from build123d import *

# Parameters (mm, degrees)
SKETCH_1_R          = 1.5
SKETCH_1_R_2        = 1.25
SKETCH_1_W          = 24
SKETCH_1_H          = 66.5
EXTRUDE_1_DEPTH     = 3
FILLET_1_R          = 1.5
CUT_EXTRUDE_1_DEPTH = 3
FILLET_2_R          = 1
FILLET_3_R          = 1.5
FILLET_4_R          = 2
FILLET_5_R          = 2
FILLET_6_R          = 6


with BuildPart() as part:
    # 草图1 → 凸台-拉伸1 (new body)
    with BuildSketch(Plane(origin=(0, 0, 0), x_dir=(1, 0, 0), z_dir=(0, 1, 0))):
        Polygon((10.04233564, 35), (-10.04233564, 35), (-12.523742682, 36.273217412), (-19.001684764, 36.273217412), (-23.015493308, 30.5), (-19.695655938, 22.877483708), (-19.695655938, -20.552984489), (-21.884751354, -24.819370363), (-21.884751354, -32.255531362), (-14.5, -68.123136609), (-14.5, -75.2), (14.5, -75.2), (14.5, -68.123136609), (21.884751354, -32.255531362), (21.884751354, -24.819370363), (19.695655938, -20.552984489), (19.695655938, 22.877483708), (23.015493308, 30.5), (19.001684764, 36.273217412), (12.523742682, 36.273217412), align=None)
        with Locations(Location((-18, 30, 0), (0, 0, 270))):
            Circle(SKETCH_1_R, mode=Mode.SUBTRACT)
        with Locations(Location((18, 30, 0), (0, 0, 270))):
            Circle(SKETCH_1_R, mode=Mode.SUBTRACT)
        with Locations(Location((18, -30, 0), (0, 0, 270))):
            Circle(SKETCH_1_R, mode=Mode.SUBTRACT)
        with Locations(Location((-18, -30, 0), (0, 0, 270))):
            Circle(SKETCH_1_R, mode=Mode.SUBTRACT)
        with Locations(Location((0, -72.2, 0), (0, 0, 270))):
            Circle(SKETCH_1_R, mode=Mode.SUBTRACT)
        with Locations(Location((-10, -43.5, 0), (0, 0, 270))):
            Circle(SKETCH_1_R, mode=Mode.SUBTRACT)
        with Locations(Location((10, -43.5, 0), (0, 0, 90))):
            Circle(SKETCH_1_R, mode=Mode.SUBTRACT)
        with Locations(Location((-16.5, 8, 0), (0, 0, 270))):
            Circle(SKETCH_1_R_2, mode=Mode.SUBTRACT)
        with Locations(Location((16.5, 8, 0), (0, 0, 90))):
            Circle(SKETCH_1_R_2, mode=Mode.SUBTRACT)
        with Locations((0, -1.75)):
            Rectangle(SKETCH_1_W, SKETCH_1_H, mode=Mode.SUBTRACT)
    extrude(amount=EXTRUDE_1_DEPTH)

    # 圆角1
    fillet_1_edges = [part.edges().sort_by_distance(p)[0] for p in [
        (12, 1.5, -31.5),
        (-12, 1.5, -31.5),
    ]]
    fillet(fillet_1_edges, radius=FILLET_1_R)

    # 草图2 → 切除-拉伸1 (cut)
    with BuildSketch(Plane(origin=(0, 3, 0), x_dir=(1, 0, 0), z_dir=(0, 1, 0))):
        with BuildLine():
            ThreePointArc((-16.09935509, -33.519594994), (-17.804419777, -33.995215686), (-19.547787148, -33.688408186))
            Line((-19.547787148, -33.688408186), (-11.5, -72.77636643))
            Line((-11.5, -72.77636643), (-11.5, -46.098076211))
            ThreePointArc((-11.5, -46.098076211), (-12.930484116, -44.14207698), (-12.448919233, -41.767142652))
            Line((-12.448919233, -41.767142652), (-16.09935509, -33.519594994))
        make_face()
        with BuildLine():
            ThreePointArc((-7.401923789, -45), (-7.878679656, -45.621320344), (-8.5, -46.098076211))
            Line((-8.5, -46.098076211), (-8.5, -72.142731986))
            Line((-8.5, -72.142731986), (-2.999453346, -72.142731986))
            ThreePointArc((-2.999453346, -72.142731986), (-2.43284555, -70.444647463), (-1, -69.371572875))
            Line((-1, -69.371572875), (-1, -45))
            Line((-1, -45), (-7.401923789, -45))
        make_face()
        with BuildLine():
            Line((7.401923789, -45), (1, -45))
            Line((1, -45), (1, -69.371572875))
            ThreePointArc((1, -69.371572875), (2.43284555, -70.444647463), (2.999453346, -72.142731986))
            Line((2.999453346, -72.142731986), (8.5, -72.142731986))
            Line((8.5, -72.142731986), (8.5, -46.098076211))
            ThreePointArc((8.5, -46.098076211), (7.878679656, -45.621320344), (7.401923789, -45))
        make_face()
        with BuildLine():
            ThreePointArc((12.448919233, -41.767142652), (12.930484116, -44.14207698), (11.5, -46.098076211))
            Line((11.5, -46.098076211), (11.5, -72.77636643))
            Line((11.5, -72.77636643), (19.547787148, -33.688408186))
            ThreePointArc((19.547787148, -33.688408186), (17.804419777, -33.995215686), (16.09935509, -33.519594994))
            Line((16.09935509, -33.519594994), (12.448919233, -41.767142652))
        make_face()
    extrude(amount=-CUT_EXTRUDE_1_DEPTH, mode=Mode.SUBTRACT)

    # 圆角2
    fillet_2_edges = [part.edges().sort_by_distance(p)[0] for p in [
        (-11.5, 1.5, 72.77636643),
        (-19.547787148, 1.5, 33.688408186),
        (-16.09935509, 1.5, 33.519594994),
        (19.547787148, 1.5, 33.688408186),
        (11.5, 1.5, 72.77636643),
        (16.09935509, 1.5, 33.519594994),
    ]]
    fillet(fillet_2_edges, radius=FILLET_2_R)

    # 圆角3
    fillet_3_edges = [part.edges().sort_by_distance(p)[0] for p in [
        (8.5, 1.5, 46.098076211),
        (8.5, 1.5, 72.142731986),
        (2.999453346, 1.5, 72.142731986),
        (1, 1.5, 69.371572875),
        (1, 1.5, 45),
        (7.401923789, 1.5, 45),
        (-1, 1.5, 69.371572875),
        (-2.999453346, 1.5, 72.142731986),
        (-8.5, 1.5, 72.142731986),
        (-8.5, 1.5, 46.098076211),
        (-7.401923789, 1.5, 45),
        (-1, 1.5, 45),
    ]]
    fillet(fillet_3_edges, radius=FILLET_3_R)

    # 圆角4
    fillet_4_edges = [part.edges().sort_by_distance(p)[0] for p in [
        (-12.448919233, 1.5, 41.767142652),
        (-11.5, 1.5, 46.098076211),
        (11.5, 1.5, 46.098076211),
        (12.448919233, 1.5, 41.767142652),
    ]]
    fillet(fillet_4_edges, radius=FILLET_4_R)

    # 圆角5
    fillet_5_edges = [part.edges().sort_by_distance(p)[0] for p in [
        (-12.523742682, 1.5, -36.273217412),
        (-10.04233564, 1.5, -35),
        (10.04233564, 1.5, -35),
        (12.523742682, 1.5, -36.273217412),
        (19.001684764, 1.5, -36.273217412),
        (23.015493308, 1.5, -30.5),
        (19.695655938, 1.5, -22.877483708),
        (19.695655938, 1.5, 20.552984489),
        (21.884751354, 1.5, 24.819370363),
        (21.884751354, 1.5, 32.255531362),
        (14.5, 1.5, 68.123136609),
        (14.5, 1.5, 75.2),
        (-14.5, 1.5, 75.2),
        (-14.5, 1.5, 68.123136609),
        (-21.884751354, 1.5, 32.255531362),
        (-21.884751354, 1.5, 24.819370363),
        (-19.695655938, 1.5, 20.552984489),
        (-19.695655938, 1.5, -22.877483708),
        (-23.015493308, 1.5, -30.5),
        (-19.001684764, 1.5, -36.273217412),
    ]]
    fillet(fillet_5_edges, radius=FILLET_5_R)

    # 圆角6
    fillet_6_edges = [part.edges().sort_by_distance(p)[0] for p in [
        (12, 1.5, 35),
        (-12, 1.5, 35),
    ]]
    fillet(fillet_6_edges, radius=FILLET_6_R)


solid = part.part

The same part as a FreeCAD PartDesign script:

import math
import FreeCAD as App
import Part
import Sketcher


def edges_at(feature, points):
    """Names of the edges that pass closest to the given points."""
    edges = feature.Shape.Edges
    near = lambda p: min(range(len(edges)), key=lambda i: edges[i].distToShape(Part.Vertex(*p))[0])
    return sorted({f"Edge{near(p) + 1}" for p in points})


def add_polygon(sketch, points):
    """Adds a closed chain of lines whose ends are joined by coincident constraints."""
    first, n = sketch.GeometryCount, len(points)
    for a, b in zip(points, points[1:] + points[:1]):
        sketch.addGeometry(Part.LineSegment(App.Vector(*a, 0), App.Vector(*b, 0)), False)
    for i in range(n):
        sketch.addConstraint(Sketcher.Constraint("Coincident", first + i, 2, first + (i + 1) % n, 1))

doc = App.newDocument("Part")
body = doc.addObject("PartDesign::Body", "Body")

sketch1 = body.newObject("Sketcher::SketchObject", "Sketch")
sketch1.AttachmentSupport = (doc.getObject("XZ_Plane"), [""])
sketch1.MapMode = "FlatFace"
add_polygon(sketch1, [(10, -35), (-10, -35), (-12.5, -36.3), (-19, -36.3), (-23, -30.5), (-19.7, -22.9), (-19.7, 20.6), (-21.9, 24.8), (-21.9, 32.3), (-14.5, 68.1), (-14.5, 75.2), (14.5, 75.2), (14.5, 68.1), (21.9, 32.3), (21.9, 24.8), (19.7, 20.6), (19.7, -22.9), (23, -30.5), (19, -36.3), (12.5, -36.3)])
sketch1.addGeometry(Part.Circle(App.Vector(-10, 43.5, 0), App.Vector(0, 0, 1), 1.5), False)
sketch1.addGeometry(Part.Circle(App.Vector(-18, 30, 0), App.Vector(0, 0, 1), 1.5), False)
sketch1.addGeometry(Part.Circle(App.Vector(0, 72.2, 0), App.Vector(0, 0, 1), 1.5), False)
sketch1.addGeometry(Part.Circle(App.Vector(10, 43.5, 0), App.Vector(0, 0, 1), 1.5), False)
sketch1.addGeometry(Part.Circle(App.Vector(18, 30, 0), App.Vector(0, 0, 1), 1.5), False)
sketch1.addGeometry(Part.Circle(App.Vector(-16.5, -8, 0), App.Vector(0, 0, 1), 1.2), False)
sketch1.addGeometry(Part.Circle(App.Vector(-18, -30, 0), App.Vector(0, 0, 1), 1.5), False)
add_polygon(sketch1, [(12, 35), (-12, 35), (-12, -31.5), (12, -31.5)])
sketch1.addGeometry(Part.Circle(App.Vector(16.5, -8, 0), App.Vector(0, 0, 1), 1.2), False)
sketch1.addGeometry(Part.Circle(App.Vector(18, -30, 0), App.Vector(0, 0, 1), 1.5), False)
sketch1.addConstraint([
    Sketcher.Constraint("Horizontal", 0),
    Sketcher.Constraint("Horizontal", 2),
    Sketcher.Constraint("Vertical", 5),
    Sketcher.Constraint("Vertical", 7),
    Sketcher.Constraint("Vertical", 9),
    Sketcher.Constraint("Horizontal", 10),
    Sketcher.Constraint("Vertical", 11),
    Sketcher.Constraint("Vertical", 13),
    Sketcher.Constraint("Vertical", 15),
    Sketcher.Constraint("Horizontal", 18),
    Sketcher.Constraint("Horizontal", 27),
    Sketcher.Constraint("Vertical", 28),
    Sketcher.Constraint("Horizontal", 29),
    Sketcher.Constraint("Vertical", 30),
    Sketcher.Constraint("Equal", 20, 21),
    Sketcher.Constraint("Equal", 21, 22),
    Sketcher.Constraint("Equal", 22, 23),
    Sketcher.Constraint("Equal", 23, 24),
    Sketcher.Constraint("Equal", 24, 26),
    Sketcher.Constraint("Equal", 25, 31),
    Sketcher.Constraint("Equal", 26, 32),
    Sketcher.Constraint("Symmetric", 24, 3, 26, 3, -1, 1),
    Sketcher.Constraint("Symmetric", 21, 3, 32, 3, -1, 1),
    Sketcher.Constraint("Symmetric", 20, 3, 23, 3, -2),
    Sketcher.Constraint("Symmetric", 21, 3, 24, 3, -2),
    Sketcher.Constraint("Symmetric", 25, 3, 31, 3, -2),
    Sketcher.Constraint("Symmetric", 8, 2, 11, 2, -2),
    Sketcher.Constraint("Symmetric", 7, 2, 12, 2, -2),
    Sketcher.Constraint("Symmetric", 5, 2, 14, 2, -2),
    Sketcher.Constraint("Symmetric", 3, 2, 16, 2, -2),
    Sketcher.Constraint("Symmetric", 2, 2, 17, 2, -2),
    Sketcher.Constraint("PointOnObject", 22, 3, -2),
    Sketcher.Constraint("Perpendicular", 1, 6),
    Sketcher.Constraint("Perpendicular", 14, 19),
    Sketcher.Constraint("Horizontal", 6, 2, 13, 2),
    Sketcher.Constraint("Horizontal", 4, 2, 15, 2),
    Sketcher.Constraint("Equal", 2, 18),
    Sketcher.Constraint("Diameter", 20, 3.0),
    Sketcher.Constraint("Diameter", 25, 2.5),
    Sketcher.Constraint("DistanceX", 10, 1, 10, 2, 29.0),
    Sketcher.Constraint("DistanceX", 27, 2, 27, 1, 24.0),
    Sketcher.Constraint("DistanceY", 28, 2, 28, 1, 66.5),
    Sketcher.Constraint("DistanceX", 20, 3, -1, 1, 10.0),
    Sketcher.Constraint("DistanceX", 21, 3, -1, 1, 18.0),
    Sketcher.Constraint("DistanceY", -1, 1, 21, 3, 30.0),
    Sketcher.Constraint("DistanceY", 25, 3, -1, 1, 8.0),
    Sketcher.Constraint("DistanceY", 0, 2, -1, 1, 35.0),
    Sketcher.Constraint("DistanceX", 27, 2, -1, 1, 12.0),
    Sketcher.Constraint("DistanceY", -1, 1, 27, 2, 35.0),
    Sketcher.Constraint("DistanceX", 25, 3, 31, 3, 33.0),
    Sketcher.Constraint("DistanceY", 22, 3, 9, 2, 3.0),
    Sketcher.Constraint("DistanceY", 28, 2, 3, 2, 1.0),
    Sketcher.Constraint("DistanceY", -1, 1, 20, 3, 43.5),
    Sketcher.Constraint("DistanceY", -1, 1, 22, 3, 72.2),
    Sketcher.Constraint("DistanceX", 0, 2, 0, 1, 20.084671),
    Sketcher.Constraint("DistanceY", 5, 1, 5, 2, 43.430468),
    Sketcher.Constraint("DistanceY", 7, 1, 7, 2, 7.436161),
    Sketcher.Constraint("DistanceX", 1, 2, 15, 2, 32.219399),
    Sketcher.Constraint("Distance", 1, 2.78899),
    Sketcher.Constraint("Distance", 4, 8.314089),
    Sketcher.Constraint("DistanceX", 2, 2, 2, 1, 6.477942),
    Sketcher.Constraint("DistanceY", 9, 1, 9, 2, 7.076863),
    Sketcher.Constraint("DistanceX", 6, 2, -1, 1, 21.884751),
    Sketcher.Constraint("DistanceY", -1, 1, 6, 2, 24.81937),
    Sketcher.Constraint("DistanceX", 2, 2, 0, 2, 8.959349),
])
pad1 = body.newObject("PartDesign::Pad", "Pad")
pad1.Profile = sketch1
pad1.Length = 3
pad1.Reversed = True
doc.recompute()

fillet = body.newObject("PartDesign::Fillet", "Fillet")
fillet.Base = (pad1, edges_at(pad1, [(12, 1.5, -31.5), (-12, 1.5, -31.5)]))
fillet.Radius = 1.5

sketch2 = body.newObject("Sketcher::SketchObject", "Sketch001")
sketch2.AttachmentSupport = (doc.getObject("XZ_Plane"), [""])
sketch2.MapMode = "FlatFace"
sketch2.AttachmentOffset = App.Placement(App.Vector(0, 0, -3), App.Rotation())
sketch2.addGeometry([
    Part.ArcOfCircle(Part.Circle(App.Vector(-18, 30, 0), App.Vector(0, 0, 1), 4), math.radians(62), math.radians(113)),
    Part.LineSegment(App.Vector(-19.5, 33.7, 0), App.Vector(-11.5, 72.8, 0)),
    Part.LineSegment(App.Vector(-11.5, 72.8, 0), App.Vector(-11.5, 46.1, 0)),
    Part.ArcOfCircle(Part.Circle(App.Vector(-10, 43.5, 0), App.Vector(0, 0, 1), 3), math.radians(120), math.radians(215)),
    Part.LineSegment(App.Vector(-12.4, 41.8, 0), App.Vector(-16.1, 33.5, 0)),
    Part.ArcOfCircle(Part.Circle(App.Vector(-10, 43.5, 0), App.Vector(0, 0, 1), 3), math.radians(30), math.radians(60)),
    Part.LineSegment(App.Vector(-8.5, 46.1, 0), App.Vector(-8.5, 72.1, 0)),
    Part.LineSegment(App.Vector(-8.5, 72.1, 0), App.Vector(-3, 72.1, 0)),
    Part.ArcOfCircle(Part.Circle(App.Vector(0, 72.2, 0), App.Vector(0, 0, 1), 3), math.radians(-179), math.radians(-109)),
    Part.LineSegment(App.Vector(-1, 69.4, 0), App.Vector(-1, 45, 0)),
    Part.LineSegment(App.Vector(-1, 45, 0), App.Vector(-7.4, 45, 0)),
    Part.LineSegment(App.Vector(7.4, 45, 0), App.Vector(1, 45, 0)),
    Part.LineSegment(App.Vector(1, 45, 0), App.Vector(1, 69.4, 0)),
    Part.ArcOfCircle(Part.Circle(App.Vector(0, 72.2, 0), App.Vector(0, 0, 1), 3), math.radians(-71), math.radians(-1)),
    Part.LineSegment(App.Vector(3, 72.1, 0), App.Vector(8.5, 72.1, 0)),
    Part.LineSegment(App.Vector(8.5, 72.1, 0), App.Vector(8.5, 46.1, 0)),
    Part.ArcOfCircle(Part.Circle(App.Vector(10, 43.5, 0), App.Vector(0, 0, 1), 3), math.radians(120), math.radians(150)),
    Part.ArcOfCircle(Part.Circle(App.Vector(10, 43.5, 0), App.Vector(0, 0, 1), 3), math.radians(-35), math.radians(60)),
    Part.LineSegment(App.Vector(11.5, 46.1, 0), App.Vector(11.5, 72.8, 0)),
    Part.LineSegment(App.Vector(11.5, 72.8, 0), App.Vector(19.5, 33.7, 0)),
    Part.ArcOfCircle(Part.Circle(App.Vector(18, 30, 0), App.Vector(0, 0, 1), 4), math.radians(67), math.radians(118)),
    Part.LineSegment(App.Vector(16.1, 33.5, 0), App.Vector(12.4, 41.8, 0)),
], False)
sketch2.addConstraint([
    Sketcher.Constraint("Coincident", 0, 2, 1, 1),
    Sketcher.Constraint("Coincident", 1, 2, 2, 1),
    Sketcher.Constraint("Coincident", 2, 2, 3, 1),
    Sketcher.Constraint("Coincident", 3, 2, 4, 1),
    Sketcher.Constraint("Coincident", 4, 2, 0, 1),
    Sketcher.Constraint("Coincident", 5, 2, 6, 1),
    Sketcher.Constraint("Coincident", 6, 2, 7, 1),
    Sketcher.Constraint("Coincident", 7, 2, 8, 1),
    Sketcher.Constraint("Coincident", 8, 2, 9, 1),
    Sketcher.Constraint("Coincident", 9, 2, 10, 1),
    Sketcher.Constraint("Coincident", 10, 2, 5, 1),
    Sketcher.Constraint("Coincident", 11, 2, 12, 1),
    Sketcher.Constraint("Coincident", 12, 2, 13, 1),
    Sketcher.Constraint("Coincident", 13, 2, 14, 1),
    Sketcher.Constraint("Coincident", 14, 2, 15, 1),
    Sketcher.Constraint("Coincident", 15, 2, 16, 1),
    Sketcher.Constraint("Coincident", 16, 2, 11, 1),
    Sketcher.Constraint("Coincident", 17, 2, 18, 1),
    Sketcher.Constraint("Coincident", 18, 2, 19, 1),
    Sketcher.Constraint("Coincident", 19, 2, 20, 1),
    Sketcher.Constraint("Coincident", 20, 2, 21, 1),
    Sketcher.Constraint("Coincident", 21, 2, 17, 1),
    Sketcher.Constraint("Vertical", 2),
    Sketcher.Constraint("Vertical", 6),
    Sketcher.Constraint("Horizontal", 7),
    Sketcher.Constraint("Vertical", 9),
    Sketcher.Constraint("Horizontal", 10),
    Sketcher.Constraint("Horizontal", 11),
    Sketcher.Constraint("Vertical", 12),
    Sketcher.Constraint("Horizontal", 14),
    Sketcher.Constraint("Vertical", 15),
    Sketcher.Constraint("Vertical", 18),
    Sketcher.Constraint("Coincident", 5, 3, 3, 3),
    Sketcher.Constraint("Coincident", 13, 3, 8, 3),
    Sketcher.Constraint("Coincident", 17, 3, 16, 3),
    Sketcher.Constraint("Equal", 3, 5),
    Sketcher.Constraint("Equal", 5, 8),
    Sketcher.Constraint("Equal", 8, 13),
    Sketcher.Constraint("Equal", 13, 16),
    Sketcher.Constraint("Equal", 16, 17),
    Sketcher.Constraint("Equal", 0, 20),
    Sketcher.Constraint("Symmetric", 3, 3, 16, 3, -2),
    Sketcher.Constraint("Symmetric", 0, 3, 20, 3, -2),
    Sketcher.Constraint("Symmetric", 9, 2, 11, 2, -2),
    Sketcher.Constraint("Symmetric", 7, 2, 13, 2, -2),
    Sketcher.Constraint("Symmetric", 1, 2, 18, 2, -2),
    Sketcher.Constraint("Horizontal", 2, 2, 5, 2),
    Sketcher.Constraint("Horizontal", 5, 2, 15, 2),
    Sketcher.Constraint("Horizontal", 0, 2, 19, 2),
    Sketcher.Constraint("Horizontal", 4, 2, 20, 2),
    Sketcher.Constraint("Horizontal", 3, 2, 21, 2),
    Sketcher.Constraint("Radius", 0, 4.0),
    Sketcher.Constraint("Radius", 3, 3.0),
    Sketcher.Constraint("DistanceX", 0, 3, -1, 1, 18.0),
    Sketcher.Constraint("DistanceY", -1, 1, 0, 3, 30.0),
    Sketcher.Constraint("DistanceX", 3, 3, -1, 1, 10.0),
    Sketcher.Constraint("DistanceX", 8, 2, -1, 1, 1.0),
    Sketcher.Constraint("DistanceY", -1, 1, 9, 2, 45.0),
    Sketcher.Constraint("DistanceX", 2, 2, 5, 2, 3.0),
    Sketcher.Constraint("DistanceY", -1, 1, 3, 3, 43.5),
    Sketcher.Constraint("DistanceY", -1, 1, 8, 3, 72.2),
    Sketcher.Constraint("DistanceY", 2, 2, 2, 1, 26.67829),
    Sketcher.Constraint("DistanceX", 7, 1, 7, 2, 5.500547),
    Sketcher.Constraint("DistanceY", -1, 1, 0, 2, 33.688408),
    Sketcher.Constraint("DistanceX", 3, 2, -1, 1, 12.448919),
    Sketcher.Constraint("DistanceY", 4, 2, 5, 2, 12.578481),
])
pocket1 = body.newObject("PartDesign::Pocket", "Pocket")
pocket1.Profile = sketch2
pocket1.Length = 3
pocket1.Reversed = True
doc.recompute()

fillet2 = body.newObject("PartDesign::Fillet", "Fillet001")
fillet2.Base = (pocket1, edges_at(pocket1, [
    (-11.5, 1.5, 72.776),
    (-19.548, 1.5, 33.688),
    (-16.099, 1.5, 33.52),
    (19.548, 1.5, 33.688),
    (11.5, 1.5, 72.776),
    (16.099, 1.5, 33.52),
]))
fillet2.Radius = 1
doc.recompute()

fillet3 = body.newObject("PartDesign::Fillet", "Fillet002")
fillet3.Base = (fillet2, edges_at(fillet2, [
    (8.5, 1.5, 46.098),
    (8.5, 1.5, 72.143),
    (2.999, 1.5, 72.143),
    (1, 1.5, 69.372),
    (1, 1.5, 45),
    (7.402, 1.5, 45),
    (-1, 1.5, 69.372),
    (-2.999, 1.5, 72.143),
    (-8.5, 1.5, 72.143),
    (-8.5, 1.5, 46.098),
    (-7.402, 1.5, 45),
    (-1, 1.5, 45),
]))
fillet3.Radius = 1.5
doc.recompute()

fillet4 = body.newObject("PartDesign::Fillet", "Fillet003")
fillet4.Base = (fillet3, edges_at(fillet3, [
    (-12.449, 1.5, 41.767),
    (-11.5, 1.5, 46.098),
    (11.5, 1.5, 46.098),
    (12.449, 1.5, 41.767),
]))
fillet4.Radius = 2
doc.recompute()

fillet5 = body.newObject("PartDesign::Fillet", "Fillet004")
fillet5.Base = (fillet4, edges_at(fillet4, [
    (-12.524, 1.5, -36.273),
    (-10.042, 1.5, -35),
    (10.042, 1.5, -35),
    (12.524, 1.5, -36.273),
    (19.002, 1.5, -36.273),
    (23.015, 1.5, -30.5),
    (19.696, 1.5, -22.877),
    (19.696, 1.5, 20.553),
    (21.885, 1.5, 24.819),
    (21.885, 1.5, 32.256),
    (14.5, 1.5, 68.123),
    (14.5, 1.5, 75.2),
    (-14.5, 1.5, 75.2),
    (-14.5, 1.5, 68.123),
    (-21.885, 1.5, 32.256),
    (-21.885, 1.5, 24.819),
    (-19.696, 1.5, 20.553),
    (-19.696, 1.5, -22.877),
    (-23.015, 1.5, -30.5),
    (-19.002, 1.5, -36.273),
]))
fillet5.Radius = 2
doc.recompute()

fillet6 = body.newObject("PartDesign::Fillet", "Fillet005")
fillet6.Base = (fillet5, edges_at(fillet5, [(12, 1.5, 35), (-12, 1.5, 35)]))
fillet6.Radius = 6

doc.recompute()
